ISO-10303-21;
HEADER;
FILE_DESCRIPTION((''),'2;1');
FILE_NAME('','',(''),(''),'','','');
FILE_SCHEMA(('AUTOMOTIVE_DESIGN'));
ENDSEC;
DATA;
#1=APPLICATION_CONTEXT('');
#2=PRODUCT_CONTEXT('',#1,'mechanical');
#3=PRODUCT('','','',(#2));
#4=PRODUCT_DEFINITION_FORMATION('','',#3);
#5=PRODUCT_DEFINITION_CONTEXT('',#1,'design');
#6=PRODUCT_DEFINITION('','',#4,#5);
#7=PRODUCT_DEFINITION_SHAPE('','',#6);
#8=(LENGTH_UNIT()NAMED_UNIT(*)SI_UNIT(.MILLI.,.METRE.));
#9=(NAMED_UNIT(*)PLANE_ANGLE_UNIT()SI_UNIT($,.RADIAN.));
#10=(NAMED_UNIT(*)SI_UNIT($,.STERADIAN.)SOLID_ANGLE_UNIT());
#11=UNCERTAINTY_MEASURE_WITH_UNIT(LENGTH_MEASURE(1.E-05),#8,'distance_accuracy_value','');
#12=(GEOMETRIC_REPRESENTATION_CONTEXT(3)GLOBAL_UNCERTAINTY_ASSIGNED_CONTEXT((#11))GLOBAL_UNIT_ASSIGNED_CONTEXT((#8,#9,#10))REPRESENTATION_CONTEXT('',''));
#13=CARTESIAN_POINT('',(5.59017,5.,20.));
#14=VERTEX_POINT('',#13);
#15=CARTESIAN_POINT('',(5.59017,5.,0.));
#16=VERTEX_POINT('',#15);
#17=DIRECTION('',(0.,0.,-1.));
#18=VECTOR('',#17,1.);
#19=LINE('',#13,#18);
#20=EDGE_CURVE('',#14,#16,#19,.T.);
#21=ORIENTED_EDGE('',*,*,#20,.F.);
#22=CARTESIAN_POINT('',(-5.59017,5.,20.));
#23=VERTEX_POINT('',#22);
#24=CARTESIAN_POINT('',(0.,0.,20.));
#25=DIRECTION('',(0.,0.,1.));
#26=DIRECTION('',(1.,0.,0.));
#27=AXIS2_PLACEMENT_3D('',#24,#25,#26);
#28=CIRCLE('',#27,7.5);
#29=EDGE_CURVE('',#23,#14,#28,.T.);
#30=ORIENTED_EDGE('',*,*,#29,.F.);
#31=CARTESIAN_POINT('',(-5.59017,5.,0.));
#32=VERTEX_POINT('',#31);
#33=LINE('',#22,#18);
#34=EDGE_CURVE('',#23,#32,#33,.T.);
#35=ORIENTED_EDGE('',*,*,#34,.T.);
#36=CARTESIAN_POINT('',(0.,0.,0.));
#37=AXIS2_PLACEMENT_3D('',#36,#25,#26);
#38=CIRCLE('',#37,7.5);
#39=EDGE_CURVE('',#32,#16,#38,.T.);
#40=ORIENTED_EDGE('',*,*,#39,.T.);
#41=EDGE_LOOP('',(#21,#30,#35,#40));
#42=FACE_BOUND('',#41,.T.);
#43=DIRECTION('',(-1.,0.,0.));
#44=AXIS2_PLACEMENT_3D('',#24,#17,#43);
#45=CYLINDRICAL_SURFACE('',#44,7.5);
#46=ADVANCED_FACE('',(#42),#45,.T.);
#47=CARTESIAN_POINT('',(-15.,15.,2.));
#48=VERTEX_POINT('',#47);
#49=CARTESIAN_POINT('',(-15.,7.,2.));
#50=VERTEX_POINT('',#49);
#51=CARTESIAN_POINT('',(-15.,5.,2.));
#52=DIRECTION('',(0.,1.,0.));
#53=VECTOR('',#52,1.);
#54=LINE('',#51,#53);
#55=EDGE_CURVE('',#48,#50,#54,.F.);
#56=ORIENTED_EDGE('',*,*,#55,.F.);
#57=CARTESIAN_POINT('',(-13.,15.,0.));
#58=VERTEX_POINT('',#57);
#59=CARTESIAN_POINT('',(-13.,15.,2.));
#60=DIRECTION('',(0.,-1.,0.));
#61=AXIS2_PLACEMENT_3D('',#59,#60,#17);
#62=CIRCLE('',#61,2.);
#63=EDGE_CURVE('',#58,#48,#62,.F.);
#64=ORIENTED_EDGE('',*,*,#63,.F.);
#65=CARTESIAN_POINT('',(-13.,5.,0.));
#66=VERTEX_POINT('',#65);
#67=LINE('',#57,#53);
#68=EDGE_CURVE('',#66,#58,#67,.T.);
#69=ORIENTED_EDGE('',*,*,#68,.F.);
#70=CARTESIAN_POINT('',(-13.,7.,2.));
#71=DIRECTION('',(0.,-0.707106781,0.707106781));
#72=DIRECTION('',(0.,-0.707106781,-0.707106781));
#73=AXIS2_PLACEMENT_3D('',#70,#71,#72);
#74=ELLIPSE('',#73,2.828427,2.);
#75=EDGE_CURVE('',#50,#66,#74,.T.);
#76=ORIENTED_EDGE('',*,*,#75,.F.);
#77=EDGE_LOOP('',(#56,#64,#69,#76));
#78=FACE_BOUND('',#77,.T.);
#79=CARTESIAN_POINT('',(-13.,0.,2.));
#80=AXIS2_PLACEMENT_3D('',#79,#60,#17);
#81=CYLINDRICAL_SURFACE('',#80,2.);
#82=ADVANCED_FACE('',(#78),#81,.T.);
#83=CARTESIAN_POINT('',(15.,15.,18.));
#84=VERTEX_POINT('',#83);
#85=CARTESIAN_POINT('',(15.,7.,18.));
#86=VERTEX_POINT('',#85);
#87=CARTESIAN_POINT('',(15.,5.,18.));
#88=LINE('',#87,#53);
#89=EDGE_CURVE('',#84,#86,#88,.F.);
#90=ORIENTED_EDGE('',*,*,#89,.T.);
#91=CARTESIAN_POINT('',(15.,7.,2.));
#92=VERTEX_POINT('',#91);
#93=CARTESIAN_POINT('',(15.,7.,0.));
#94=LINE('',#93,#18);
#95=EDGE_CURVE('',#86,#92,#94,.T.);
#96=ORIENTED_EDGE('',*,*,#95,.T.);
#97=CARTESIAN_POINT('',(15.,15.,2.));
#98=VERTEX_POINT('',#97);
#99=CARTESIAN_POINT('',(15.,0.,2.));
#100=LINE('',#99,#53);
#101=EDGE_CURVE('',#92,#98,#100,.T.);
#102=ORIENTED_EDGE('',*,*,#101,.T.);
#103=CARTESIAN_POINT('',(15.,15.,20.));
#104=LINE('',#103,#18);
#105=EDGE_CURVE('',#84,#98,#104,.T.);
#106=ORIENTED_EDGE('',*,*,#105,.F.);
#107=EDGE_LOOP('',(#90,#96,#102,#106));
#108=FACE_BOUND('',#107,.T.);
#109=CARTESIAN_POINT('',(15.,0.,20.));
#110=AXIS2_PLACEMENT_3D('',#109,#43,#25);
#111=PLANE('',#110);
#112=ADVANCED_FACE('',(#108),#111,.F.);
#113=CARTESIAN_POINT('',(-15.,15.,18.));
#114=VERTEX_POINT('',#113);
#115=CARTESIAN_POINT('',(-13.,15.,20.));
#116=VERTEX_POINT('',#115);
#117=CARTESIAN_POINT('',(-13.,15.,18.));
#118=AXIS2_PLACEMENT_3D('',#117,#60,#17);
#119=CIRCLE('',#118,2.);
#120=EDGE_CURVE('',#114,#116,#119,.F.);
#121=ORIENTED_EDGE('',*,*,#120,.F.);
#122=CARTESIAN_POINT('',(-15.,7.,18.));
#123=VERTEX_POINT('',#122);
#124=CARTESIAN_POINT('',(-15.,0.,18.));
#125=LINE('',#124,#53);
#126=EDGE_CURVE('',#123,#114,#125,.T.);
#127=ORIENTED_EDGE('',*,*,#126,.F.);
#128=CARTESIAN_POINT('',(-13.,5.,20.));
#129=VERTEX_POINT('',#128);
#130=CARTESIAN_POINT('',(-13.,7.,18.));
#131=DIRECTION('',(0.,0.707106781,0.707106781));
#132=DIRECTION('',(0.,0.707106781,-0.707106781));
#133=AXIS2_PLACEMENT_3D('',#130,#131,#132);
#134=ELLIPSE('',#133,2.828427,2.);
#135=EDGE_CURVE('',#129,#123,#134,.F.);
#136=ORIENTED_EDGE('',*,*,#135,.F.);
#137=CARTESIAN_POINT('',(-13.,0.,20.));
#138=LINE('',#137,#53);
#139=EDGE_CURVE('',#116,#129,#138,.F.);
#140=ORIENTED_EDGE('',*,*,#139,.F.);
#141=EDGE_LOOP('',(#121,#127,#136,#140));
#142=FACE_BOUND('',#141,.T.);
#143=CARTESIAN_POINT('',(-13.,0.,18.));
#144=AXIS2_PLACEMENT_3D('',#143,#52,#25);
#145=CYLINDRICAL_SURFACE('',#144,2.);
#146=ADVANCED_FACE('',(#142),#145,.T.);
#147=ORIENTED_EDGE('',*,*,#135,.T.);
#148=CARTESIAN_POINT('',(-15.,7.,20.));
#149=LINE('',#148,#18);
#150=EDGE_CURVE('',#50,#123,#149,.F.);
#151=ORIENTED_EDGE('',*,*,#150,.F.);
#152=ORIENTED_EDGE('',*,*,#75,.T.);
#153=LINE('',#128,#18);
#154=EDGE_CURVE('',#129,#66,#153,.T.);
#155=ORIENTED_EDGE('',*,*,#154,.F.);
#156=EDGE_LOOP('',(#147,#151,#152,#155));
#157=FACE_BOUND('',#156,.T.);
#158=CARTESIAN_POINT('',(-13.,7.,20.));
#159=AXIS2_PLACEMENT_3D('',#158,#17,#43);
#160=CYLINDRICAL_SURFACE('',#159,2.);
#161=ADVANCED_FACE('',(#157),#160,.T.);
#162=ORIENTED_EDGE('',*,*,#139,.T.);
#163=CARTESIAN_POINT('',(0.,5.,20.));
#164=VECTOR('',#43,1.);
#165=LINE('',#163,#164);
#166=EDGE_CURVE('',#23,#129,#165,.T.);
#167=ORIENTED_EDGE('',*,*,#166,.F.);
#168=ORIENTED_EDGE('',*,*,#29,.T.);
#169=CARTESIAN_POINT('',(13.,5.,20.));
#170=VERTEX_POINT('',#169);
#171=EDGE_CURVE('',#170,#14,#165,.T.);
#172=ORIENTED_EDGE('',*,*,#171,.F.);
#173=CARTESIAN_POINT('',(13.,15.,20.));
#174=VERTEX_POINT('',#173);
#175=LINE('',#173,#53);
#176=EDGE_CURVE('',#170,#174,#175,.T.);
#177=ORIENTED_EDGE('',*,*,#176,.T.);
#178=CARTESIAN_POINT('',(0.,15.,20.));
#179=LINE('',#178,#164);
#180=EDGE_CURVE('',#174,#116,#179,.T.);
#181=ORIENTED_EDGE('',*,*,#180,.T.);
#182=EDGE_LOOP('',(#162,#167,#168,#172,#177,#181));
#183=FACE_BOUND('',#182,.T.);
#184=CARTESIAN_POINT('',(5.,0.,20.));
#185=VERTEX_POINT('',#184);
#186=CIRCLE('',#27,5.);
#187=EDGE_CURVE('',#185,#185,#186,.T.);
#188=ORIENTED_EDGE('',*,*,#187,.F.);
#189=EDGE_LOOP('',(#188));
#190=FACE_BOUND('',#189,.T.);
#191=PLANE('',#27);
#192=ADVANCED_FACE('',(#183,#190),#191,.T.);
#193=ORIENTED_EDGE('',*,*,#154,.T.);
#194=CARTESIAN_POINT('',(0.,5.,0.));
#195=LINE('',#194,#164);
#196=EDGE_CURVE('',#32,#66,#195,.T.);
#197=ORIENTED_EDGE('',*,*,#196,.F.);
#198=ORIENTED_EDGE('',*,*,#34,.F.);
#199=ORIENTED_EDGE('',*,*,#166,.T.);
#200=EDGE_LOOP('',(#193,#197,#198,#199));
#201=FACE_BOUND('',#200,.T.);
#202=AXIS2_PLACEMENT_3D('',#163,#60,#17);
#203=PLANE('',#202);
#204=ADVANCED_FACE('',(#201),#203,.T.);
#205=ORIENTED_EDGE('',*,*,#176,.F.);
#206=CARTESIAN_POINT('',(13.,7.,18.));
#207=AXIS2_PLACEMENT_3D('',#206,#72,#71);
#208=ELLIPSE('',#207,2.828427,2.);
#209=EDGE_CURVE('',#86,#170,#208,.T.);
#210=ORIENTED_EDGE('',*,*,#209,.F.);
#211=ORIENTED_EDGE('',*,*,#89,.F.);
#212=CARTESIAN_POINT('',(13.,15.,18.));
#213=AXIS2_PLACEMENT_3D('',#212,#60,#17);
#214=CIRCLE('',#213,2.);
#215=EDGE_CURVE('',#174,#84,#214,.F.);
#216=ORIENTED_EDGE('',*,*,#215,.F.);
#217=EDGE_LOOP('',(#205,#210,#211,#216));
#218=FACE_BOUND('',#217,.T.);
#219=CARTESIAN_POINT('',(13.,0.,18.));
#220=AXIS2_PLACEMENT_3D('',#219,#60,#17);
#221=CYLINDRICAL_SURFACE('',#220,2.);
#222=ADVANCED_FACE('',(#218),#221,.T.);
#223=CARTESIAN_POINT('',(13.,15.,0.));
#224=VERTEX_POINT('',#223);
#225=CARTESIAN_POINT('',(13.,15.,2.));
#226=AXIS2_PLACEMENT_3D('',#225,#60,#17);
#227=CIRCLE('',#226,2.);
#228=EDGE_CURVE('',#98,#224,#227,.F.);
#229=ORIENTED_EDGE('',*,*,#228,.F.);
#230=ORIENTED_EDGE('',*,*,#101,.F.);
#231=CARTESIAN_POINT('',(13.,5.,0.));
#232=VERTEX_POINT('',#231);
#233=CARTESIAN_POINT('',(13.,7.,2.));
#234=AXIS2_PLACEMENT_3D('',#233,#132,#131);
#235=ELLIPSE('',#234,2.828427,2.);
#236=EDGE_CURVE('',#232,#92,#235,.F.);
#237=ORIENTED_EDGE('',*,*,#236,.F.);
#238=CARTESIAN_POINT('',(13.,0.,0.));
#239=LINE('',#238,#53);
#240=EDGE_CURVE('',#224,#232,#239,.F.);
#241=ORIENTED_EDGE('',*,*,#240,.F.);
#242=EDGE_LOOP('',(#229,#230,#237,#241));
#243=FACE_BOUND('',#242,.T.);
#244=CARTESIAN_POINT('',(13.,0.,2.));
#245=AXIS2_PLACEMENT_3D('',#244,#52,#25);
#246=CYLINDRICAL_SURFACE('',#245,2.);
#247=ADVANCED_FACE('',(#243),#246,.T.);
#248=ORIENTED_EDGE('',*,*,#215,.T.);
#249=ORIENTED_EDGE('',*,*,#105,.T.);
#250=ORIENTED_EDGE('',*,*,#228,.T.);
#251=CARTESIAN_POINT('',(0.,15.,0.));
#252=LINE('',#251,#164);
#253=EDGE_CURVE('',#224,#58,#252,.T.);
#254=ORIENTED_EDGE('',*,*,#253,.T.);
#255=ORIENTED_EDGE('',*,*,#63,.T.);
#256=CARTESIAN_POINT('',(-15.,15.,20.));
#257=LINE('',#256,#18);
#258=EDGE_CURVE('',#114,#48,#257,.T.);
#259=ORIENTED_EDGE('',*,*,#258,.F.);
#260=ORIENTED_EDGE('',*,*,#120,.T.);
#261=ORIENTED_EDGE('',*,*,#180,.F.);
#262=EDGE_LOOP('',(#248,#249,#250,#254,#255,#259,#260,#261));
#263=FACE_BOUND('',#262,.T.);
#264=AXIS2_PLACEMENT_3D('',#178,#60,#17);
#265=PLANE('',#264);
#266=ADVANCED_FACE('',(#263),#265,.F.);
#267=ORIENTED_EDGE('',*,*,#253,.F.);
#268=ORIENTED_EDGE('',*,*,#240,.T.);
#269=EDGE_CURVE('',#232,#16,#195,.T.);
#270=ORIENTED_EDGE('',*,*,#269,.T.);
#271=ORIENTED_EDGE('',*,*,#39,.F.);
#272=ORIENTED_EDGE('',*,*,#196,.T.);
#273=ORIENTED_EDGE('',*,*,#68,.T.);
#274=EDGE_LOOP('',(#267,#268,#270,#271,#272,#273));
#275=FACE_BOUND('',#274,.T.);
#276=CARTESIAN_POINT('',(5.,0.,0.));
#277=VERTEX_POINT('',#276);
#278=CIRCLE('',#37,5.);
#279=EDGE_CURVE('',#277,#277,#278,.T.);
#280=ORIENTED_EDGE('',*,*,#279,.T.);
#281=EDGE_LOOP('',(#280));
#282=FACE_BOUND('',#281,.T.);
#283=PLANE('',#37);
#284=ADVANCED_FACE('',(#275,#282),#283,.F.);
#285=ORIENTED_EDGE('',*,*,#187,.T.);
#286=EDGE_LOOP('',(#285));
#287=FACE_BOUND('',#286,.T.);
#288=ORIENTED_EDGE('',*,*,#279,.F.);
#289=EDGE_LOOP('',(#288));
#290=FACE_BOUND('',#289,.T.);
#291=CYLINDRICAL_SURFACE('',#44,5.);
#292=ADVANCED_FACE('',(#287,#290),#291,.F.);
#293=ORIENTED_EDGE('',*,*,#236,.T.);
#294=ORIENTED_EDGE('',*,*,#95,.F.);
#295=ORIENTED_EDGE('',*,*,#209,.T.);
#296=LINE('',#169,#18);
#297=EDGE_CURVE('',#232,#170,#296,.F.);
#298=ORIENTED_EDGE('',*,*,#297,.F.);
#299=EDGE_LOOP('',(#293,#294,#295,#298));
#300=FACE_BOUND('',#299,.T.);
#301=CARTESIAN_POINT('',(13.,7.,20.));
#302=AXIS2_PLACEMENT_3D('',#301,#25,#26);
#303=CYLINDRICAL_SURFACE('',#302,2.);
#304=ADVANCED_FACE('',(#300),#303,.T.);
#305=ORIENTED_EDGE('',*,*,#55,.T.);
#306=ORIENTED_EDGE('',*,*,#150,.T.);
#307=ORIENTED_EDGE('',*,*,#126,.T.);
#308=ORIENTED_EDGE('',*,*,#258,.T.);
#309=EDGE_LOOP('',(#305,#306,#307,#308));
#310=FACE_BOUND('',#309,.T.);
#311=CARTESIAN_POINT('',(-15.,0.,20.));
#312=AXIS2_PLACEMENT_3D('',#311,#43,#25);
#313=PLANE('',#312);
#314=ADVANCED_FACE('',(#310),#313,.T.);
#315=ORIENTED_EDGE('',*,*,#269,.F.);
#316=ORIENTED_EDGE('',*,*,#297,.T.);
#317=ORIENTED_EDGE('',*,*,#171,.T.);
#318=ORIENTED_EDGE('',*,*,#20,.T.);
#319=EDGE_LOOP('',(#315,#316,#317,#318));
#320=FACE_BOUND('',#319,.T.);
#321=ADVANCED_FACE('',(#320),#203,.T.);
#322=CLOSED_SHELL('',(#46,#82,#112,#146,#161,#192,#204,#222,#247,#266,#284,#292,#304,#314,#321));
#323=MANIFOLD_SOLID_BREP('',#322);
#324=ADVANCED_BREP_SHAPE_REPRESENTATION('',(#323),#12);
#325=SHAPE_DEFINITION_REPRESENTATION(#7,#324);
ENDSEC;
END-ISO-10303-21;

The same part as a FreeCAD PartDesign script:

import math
import FreeCAD as App
import Part
import Sketcher
Q = App.Units.Quantity


def edges_at(feature, points):
    """Names of the edges that pass closest to the given points."""
    edges = feature.Shape.Edges
    near = lambda p: min(range(len(edges)), key=lambda i: edges[i].distToShape(Part.Vertex(*p))[0])
    return sorted({f"Edge{near(p) + 1}" for p in points})

doc = App.newDocument("Part")
body = doc.addObject("PartDesign::Body", "Body")

sketch1 = body.newObject("Sketcher::SketchObject", "Sketch")
sketch1.AttachmentSupport = (doc.getObject("XY_Plane"), [""])
sketch1.MapMode = "FlatFace"
sketch1.addGeometry([
    Part.ArcOfCircle(Part.Circle(App.Vector(0, 0, 0), App.Vector(0, 0, 1), 8), math.radians(138), math.radians(402)),
    Part.LineSegment(App.Vector(6, 5, 0), App.Vector(15, 5, 0)),
    Part.LineSegment(App.Vector(15, 5, 0), App.Vector(15, 15, 0)),
    Part.LineSegment(App.Vector(15, 15, 0), App.Vector(-15, 15, 0)),
    Part.LineSegment(App.Vector(-15, 15, 0), App.Vector(-15, 5, 0)),
    Part.LineSegment(App.Vector(-15, 5, 0), App.Vector(-6, 5, 0)),
    Part.Circle(App.Vector(0, 0, 0), App.Vector(0, 0, 1), 5),
], False)
sketch1.addConstraint([
    Sketcher.Constraint("Coincident", 0, 2, 1, 1),
    Sketcher.Constraint("Coincident", 1, 2, 2, 1),
    Sketcher.Constraint("Coincident", 2, 2, 3, 1),
    Sketcher.Constraint("Coincident", 3, 2, 4, 1),
    Sketcher.Constraint("Coincident", 4, 2, 5, 1),
    Sketcher.Constraint("Coincident", 5, 2, 0, 1),
    Sketcher.Constraint("Horizontal", 1),
    Sketcher.Constraint("Vertical", 2),
    Sketcher.Constraint("Horizontal", 3),
    Sketcher.Constraint("Vertical", 4),
    Sketcher.Constraint("Horizontal", 5),
    Sketcher.Constraint("Coincident", 0, 3, -1, 1),
    Sketcher.Constraint("Coincident", 6, 3, -1, 1),
    Sketcher.Constraint("Symmetric", 1, 2, 4, 2, -2),
    Sketcher.Constraint("Diameter", 6, Q("10 mm")),
    Sketcher.Constraint("Radius", 0, Q("7.5 mm")),
    Sketcher.Constraint("DistanceX", 3, 2, 3, 1, Q("30 mm")),
    Sketcher.Constraint("DistanceY", 2, 1, 2, 2, Q("10 mm")),
    Sketcher.Constraint("DistanceY", -1, 1, 0, 2, Q("5 mm")),
])
pad1 = body.newObject("PartDesign::Pad", "Pad")
pad1.Profile = sketch1
pad1.Length = 20
doc.recompute()

fillet = body.newObject("PartDesign::Fillet", "Fillet")
fillet.Base = (pad1, edges_at(pad1, [
    (-15, 5, 10),
    (15, 5, 10),
    (15, 10, 20),
    (-15, 10, 20),
    (-15, 10, 0),
    (15, 10, 0),
]))
fillet.Radius = 2

doc.recompute()
